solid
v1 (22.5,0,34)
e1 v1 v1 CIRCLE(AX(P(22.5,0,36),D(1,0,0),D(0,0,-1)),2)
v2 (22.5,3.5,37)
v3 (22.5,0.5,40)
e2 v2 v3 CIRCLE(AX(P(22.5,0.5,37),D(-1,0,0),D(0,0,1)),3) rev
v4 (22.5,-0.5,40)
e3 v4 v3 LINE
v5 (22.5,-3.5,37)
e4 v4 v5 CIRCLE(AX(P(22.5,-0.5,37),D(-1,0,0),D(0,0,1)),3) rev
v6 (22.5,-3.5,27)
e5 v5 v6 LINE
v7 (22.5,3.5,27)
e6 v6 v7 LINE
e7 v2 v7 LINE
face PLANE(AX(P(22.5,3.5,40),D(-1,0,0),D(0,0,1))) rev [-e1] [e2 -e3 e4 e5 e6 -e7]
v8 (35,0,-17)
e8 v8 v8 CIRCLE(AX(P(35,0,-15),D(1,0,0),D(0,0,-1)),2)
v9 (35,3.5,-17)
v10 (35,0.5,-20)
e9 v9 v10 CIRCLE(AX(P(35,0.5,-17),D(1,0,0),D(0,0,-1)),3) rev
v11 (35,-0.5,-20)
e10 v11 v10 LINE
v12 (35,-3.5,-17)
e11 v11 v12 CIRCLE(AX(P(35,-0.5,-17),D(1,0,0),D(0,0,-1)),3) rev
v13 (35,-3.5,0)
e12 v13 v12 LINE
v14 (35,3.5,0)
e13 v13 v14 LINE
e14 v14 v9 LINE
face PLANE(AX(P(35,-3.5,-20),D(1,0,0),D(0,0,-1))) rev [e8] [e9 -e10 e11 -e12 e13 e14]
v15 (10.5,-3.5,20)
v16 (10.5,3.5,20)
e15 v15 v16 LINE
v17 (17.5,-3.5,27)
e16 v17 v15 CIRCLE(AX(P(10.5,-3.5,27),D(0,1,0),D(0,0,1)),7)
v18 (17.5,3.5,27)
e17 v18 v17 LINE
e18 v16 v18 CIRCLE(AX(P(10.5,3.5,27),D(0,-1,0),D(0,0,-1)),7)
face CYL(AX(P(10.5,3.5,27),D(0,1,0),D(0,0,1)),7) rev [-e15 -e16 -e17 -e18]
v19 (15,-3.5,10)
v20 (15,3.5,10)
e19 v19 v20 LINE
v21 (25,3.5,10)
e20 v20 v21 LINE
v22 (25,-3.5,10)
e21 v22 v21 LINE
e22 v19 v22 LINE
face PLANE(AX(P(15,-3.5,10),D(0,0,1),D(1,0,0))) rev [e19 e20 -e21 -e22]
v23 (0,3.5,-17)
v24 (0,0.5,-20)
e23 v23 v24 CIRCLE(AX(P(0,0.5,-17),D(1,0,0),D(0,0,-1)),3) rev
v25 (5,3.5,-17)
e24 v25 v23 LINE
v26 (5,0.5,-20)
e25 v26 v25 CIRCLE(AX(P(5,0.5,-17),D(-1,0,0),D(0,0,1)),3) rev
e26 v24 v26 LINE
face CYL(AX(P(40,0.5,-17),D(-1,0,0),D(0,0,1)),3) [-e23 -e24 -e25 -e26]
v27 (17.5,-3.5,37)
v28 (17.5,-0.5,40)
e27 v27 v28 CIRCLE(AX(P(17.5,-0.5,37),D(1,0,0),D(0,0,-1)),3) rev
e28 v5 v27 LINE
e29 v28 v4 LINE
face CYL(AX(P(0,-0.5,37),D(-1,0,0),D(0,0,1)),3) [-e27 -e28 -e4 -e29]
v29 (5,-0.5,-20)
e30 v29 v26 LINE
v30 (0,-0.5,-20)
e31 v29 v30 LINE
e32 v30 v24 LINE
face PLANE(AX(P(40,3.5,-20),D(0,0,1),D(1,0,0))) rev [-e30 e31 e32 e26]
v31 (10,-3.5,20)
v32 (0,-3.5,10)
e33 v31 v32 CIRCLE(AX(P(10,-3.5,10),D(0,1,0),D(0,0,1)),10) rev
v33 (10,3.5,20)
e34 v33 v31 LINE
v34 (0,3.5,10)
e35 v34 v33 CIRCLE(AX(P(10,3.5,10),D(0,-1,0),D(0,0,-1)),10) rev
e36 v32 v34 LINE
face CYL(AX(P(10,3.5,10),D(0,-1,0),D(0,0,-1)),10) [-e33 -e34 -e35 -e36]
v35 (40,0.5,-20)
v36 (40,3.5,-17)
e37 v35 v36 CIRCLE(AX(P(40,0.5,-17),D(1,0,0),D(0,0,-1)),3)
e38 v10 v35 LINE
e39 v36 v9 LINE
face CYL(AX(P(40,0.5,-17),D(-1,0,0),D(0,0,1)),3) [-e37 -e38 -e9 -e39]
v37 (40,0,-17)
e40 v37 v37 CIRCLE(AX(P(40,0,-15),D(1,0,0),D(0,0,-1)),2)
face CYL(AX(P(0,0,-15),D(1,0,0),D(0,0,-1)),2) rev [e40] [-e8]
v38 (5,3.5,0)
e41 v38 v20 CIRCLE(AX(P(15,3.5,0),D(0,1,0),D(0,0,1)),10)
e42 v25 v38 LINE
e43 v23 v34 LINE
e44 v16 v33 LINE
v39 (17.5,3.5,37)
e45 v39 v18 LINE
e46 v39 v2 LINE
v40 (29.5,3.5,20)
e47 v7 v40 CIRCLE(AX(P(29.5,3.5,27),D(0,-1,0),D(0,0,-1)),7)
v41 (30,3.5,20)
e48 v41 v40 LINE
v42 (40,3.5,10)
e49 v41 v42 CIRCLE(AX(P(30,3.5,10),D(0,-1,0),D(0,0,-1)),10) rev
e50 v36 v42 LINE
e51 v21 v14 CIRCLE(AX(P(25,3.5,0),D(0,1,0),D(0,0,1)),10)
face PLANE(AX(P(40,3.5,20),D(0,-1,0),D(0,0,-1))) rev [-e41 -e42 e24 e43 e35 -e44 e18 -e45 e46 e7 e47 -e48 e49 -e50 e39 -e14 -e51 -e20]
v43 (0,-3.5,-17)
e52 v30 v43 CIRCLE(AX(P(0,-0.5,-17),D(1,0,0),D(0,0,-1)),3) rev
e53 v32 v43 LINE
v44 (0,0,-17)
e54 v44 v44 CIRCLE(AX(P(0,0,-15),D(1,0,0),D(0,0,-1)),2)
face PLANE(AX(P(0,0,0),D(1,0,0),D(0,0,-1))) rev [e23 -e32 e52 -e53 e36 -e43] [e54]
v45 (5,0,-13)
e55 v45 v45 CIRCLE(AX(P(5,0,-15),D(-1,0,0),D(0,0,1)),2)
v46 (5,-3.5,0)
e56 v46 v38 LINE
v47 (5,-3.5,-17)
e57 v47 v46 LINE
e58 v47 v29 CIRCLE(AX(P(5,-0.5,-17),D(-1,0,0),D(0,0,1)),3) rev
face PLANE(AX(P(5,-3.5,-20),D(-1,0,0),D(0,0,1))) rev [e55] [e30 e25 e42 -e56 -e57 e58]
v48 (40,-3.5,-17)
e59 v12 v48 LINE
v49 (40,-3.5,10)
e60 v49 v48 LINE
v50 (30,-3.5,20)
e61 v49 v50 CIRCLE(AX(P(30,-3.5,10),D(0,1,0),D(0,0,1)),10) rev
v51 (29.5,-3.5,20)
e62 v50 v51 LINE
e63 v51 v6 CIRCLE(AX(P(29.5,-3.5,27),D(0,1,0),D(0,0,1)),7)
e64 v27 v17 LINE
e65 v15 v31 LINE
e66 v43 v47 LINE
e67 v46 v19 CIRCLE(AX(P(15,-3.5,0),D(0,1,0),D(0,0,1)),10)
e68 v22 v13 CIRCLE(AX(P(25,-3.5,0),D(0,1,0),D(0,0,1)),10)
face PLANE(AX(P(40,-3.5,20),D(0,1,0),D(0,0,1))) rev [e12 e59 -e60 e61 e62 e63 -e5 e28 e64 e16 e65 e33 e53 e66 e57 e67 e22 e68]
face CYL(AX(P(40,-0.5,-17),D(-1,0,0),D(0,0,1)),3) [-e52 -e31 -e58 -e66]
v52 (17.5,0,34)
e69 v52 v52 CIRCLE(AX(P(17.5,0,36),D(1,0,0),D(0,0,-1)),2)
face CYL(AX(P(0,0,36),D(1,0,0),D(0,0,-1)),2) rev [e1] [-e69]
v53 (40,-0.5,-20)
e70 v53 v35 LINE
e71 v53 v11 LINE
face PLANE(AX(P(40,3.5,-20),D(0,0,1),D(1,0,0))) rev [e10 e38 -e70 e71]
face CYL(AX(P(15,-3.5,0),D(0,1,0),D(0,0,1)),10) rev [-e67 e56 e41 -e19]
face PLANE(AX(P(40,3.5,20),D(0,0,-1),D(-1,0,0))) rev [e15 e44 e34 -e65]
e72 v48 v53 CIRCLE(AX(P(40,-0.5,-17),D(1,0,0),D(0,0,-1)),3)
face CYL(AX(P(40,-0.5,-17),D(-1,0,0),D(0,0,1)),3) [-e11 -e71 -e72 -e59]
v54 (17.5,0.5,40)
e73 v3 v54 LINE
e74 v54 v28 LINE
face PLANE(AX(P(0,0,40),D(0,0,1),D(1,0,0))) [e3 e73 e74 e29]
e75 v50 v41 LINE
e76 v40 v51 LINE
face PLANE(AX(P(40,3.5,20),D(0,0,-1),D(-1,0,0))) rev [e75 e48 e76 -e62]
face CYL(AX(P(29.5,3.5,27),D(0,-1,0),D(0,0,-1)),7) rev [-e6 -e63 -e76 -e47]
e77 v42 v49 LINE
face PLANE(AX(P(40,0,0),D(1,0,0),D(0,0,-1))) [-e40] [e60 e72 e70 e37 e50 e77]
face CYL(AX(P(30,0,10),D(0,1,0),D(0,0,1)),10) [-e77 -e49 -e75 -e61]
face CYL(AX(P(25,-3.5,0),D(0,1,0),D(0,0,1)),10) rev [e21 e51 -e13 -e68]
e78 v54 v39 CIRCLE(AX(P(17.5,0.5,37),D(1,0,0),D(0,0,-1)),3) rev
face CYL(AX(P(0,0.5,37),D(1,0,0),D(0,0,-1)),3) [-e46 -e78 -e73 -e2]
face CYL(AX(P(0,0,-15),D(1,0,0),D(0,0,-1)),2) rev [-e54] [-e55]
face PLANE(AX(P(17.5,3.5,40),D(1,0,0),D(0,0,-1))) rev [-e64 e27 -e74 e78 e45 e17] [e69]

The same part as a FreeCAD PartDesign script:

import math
import FreeCAD as App
import Part
import Sketcher

V = App.Vector
Q = App.Units.Quantity


def edges_at(feature, points):
    """Names of the edges that pass closest to the given points."""
    edges = feature.Shape.Edges
    near = lambda p: min(range(len(edges)), key=lambda i: edges[i].distToShape(Part.Vertex(*p))[0])
    return sorted({f"Edge{near(p) + 1}" for p in points})


def add_polygon(sketch, points):
    """Adds a closed chain of lines whose ends are joined by coincident constraints."""
    first, n = sketch.GeometryCount, len(points)
    for a, b in zip(points, points[1:] + points[:1]):
        sketch.addGeometry(Part.LineSegment(App.Vector(*a, 0), App.Vector(*b, 0)), False)
    for i in range(n):
        sketch.addConstraint(Sketcher.Constraint("Coincident", first + i, 2, first + (i + 1) % n, 1))

doc = App.newDocument("Part")
body = doc.addObject("PartDesign::Body", "Body")

# Sketch on YZ plane
sketch1 = doc.addObject("Sketcher::SketchObject", "Sketch")
body.addObject(sketch1)
sketch1.AttachmentSupport = (doc.YZ_Plane, [""])
sketch1.MapMode = "FlatFace"
add_polygon(sketch1, [(4, 20), (-4, 20), (-4, -20), (4, -20)])  # lines 0-3
sketch1.addConstraint([
    Sketcher.Constraint("Horizontal", 0),
    Sketcher.Constraint("Vertical", 1),
    Sketcher.Constraint("Horizontal", 2),
    Sketcher.Constraint("Vertical", 3),
    Sketcher.Constraint("Symmetric", 0, 2, 2, 2, -1, 1),
    Sketcher.Constraint("DistanceX", 0, 2, 0, 1, Q("7 mm")),
    Sketcher.Constraint("DistanceY", 1, 2, 1, 1, Q("40 mm")),
])
pad1 = doc.addObject("PartDesign::Pad", "Pad")
body.addObject(pad1)
pad1.Profile = sketch1
pad1.Length = 40

# Sketch on XZ plane
sketch2 = doc.addObject("Sketcher::SketchObject", "Sketch001")
body.addObject(sketch2)
sketch2.AttachmentSupport = (doc.XZ_Plane, [""])
sketch2.MapMode = "FlatFace"
sketch2.AttachmentOffset = App.Placement(V(0, 0, -3.5), App.Rotation())
sketch2.addGeometry([
    Part.LineSegment(V(35, -20, 0), V(5, -20, 0)),  # 0
    Part.LineSegment(V(5, -20, 0), V(5, 0, 0)),  # 1
    Part.ArcOfCircle(Part.Circle(V(15, 0, 0), V(0, 0, 1), 10), math.radians(90), math.radians(180)),  # 2
    Part.LineSegment(V(15, 10, 0), V(25, 10, 0)),  # 3
    Part.ArcOfCircle(Part.Circle(V(25, 0, 0), V(0, 0, 1), 10), math.radians(0), math.radians(90)),  # 4
    Part.LineSegment(V(35, 0, 0), V(35, -20, 0)),  # 5
], False)
sketch2.addConstraint([
    Sketcher.Constraint("Coincident", 0, 2, 1, 1),
    Sketcher.Constraint("Tangent", 1, 2, 2, 2),
    Sketcher.Constraint("Tangent", 2, 1, 3, 1),
    Sketcher.Constraint("Tangent", 3, 2, 4, 2),
    Sketcher.Constraint("Tangent", 4, 1, 5, 1),
    Sketcher.Constraint("Coincident", 5, 2, 0, 1),
    Sketcher.Constraint("Horizontal", 0),
    Sketcher.Constraint("Vertical", 1),
    Sketcher.Constraint("Horizontal", 3),
    Sketcher.Constraint("Vertical", 5),
    Sketcher.Constraint("Equal", 2, 4),
    Sketcher.Constraint("PointOnObject", 2, 3, -1),
    Sketcher.Constraint("Radius", 2, Q("10 mm")),
    Sketcher.Constraint("DistanceX", 0, 2, 0, 1, Q("30 mm")),
    Sketcher.Constraint("DistanceY", 1, 1, 1, 2, Q("20 mm")),
    Sketcher.Constraint("DistanceX", -1, 1, 2, 3, Q("15 mm")),
])
pocket1 = doc.addObject("PartDesign::Pocket", "Pocket")
body.addObject(pocket1)
pocket1.Profile = sketch2
pocket1.Type = "ThroughAll"
pocket1.Reversed = True
doc.recompute()

fillet = doc.addObject("PartDesign::Fillet", "Fillet")
body.addObject(fillet)
fillet.Base = (pocket1, edges_at(pocket1, [(40, 0, 20), (0, 0, 20)]))
fillet.Radius = 10

# Sketch on XY plane
sketch3 = doc.addObject("Sketcher::SketchObject", "Sketch002")
body.addObject(sketch3)
sketch3.AttachmentSupport = (doc.XY_Plane, [""])
sketch3.MapMode = "FlatFace"
sketch3.AttachmentOffset = App.Placement(V(0, 0, 20), App.Rotation())
add_polygon(sketch3, [(18, 4), (18, -4), (22, -4), (22, 4)])  # lines 0-3
sketch3.addConstraint([
    Sketcher.Constraint("Vertical", 0),
    Sketcher.Constraint("Horizontal", 1),
    Sketcher.Constraint("Vertical", 2),
    Sketcher.Constraint("Horizontal", 3),
    Sketcher.Constraint("DistanceX", 1, 1, 1, 2, Q("5 mm")),
    Sketcher.Constraint("DistanceY", 0, 2, 0, 1, Q("7 mm")),
    Sketcher.Constraint("DistanceX", -1, 1, 0, 2, Q("17.5 mm")),
    Sketcher.Constraint("DistanceY", 0, 2, -1, 1, Q("3.5 mm")),
])
pad2 = doc.addObject("PartDesign::Pad", "Pad001")
body.addObject(pad2)
pad2.Profile = sketch3
pad2.Length = 20
doc.recompute()

fillet2 = doc.addObject("PartDesign::Fillet", "Fillet001")
body.addObject(fillet2)
fillet2.Base = (pad2, edges_at(pad2, [(17.5, 0, 20), (22.5, 0, 20)]))
fillet2.Radius = 7
doc.recompute()

fillet3 = doc.addObject("PartDesign::Fillet", "Fillet002")
body.addObject(fillet3)
fillet3.Base = (fillet2, edges_at(fillet2, [
    (2.5, -3.5, -20),
    (2.5, 3.5, -20),
    (20, -3.5, 40),
    (20, 3.5, 40),
    (37.5, -3.5, -20),
    (37.5, 3.5, -20),
]))
fillet3.Radius = 3

# Sketch on YZ plane
sketch4 = doc.addObject("Sketcher::SketchObject", "Sketch003")
body.addObject(sketch4)
sketch4.AttachmentSupport = (doc.YZ_Plane, [""])
sketch4.MapMode = "FlatFace"
sketch4.AttachmentOffset = App.Placement(V(0, 0, 40), App.Rotation())
sketch4.addGeometry(Part.Circle(V(0, -15, 0), V(0, 0, 1), 2), False)
sketch4.addConstraint([
    Sketcher.Constraint("PointOnObject", 0, 3, -2),
    Sketcher.Constraint("Diameter", 0, Q("4 mm")),
    Sketcher.Constraint("DistanceY", 0, 3, -1, 1, Q("15 mm")),
])
pocket2 = doc.addObject("PartDesign::Pocket", "Pocket001")
body.addObject(pocket2)
pocket2.Profile = sketch4
pocket2.Type = "ThroughAll"

# Sketch on YZ plane
sketch5 = doc.addObject("Sketcher::SketchObject", "Sketch004")
body.addObject(sketch5)
sketch5.AttachmentSupport = (doc.YZ_Plane, [""])
sketch5.MapMode = "FlatFace"
sketch5.AttachmentOffset = App.Placement(V(0, 0, 22.5), App.Rotation())
sketch5.addGeometry(Part.Circle(V(0, 36, 0), V(0, 0, 1), 2), False)
sketch5.addConstraint([
    Sketcher.Constraint("PointOnObject", 0, 3, -2),
    Sketcher.Constraint("Diameter", 0, Q("4 mm")),
    Sketcher.Constraint("DistanceY", -1, 1, 0, 3, Q("36 mm")),
])
pocket3 = doc.addObject("PartDesign::Pocket", "Pocket002")
body.addObject(pocket3)
pocket3.Profile = sketch5
pocket3.Type = "ThroughAll"

doc.recompute()
